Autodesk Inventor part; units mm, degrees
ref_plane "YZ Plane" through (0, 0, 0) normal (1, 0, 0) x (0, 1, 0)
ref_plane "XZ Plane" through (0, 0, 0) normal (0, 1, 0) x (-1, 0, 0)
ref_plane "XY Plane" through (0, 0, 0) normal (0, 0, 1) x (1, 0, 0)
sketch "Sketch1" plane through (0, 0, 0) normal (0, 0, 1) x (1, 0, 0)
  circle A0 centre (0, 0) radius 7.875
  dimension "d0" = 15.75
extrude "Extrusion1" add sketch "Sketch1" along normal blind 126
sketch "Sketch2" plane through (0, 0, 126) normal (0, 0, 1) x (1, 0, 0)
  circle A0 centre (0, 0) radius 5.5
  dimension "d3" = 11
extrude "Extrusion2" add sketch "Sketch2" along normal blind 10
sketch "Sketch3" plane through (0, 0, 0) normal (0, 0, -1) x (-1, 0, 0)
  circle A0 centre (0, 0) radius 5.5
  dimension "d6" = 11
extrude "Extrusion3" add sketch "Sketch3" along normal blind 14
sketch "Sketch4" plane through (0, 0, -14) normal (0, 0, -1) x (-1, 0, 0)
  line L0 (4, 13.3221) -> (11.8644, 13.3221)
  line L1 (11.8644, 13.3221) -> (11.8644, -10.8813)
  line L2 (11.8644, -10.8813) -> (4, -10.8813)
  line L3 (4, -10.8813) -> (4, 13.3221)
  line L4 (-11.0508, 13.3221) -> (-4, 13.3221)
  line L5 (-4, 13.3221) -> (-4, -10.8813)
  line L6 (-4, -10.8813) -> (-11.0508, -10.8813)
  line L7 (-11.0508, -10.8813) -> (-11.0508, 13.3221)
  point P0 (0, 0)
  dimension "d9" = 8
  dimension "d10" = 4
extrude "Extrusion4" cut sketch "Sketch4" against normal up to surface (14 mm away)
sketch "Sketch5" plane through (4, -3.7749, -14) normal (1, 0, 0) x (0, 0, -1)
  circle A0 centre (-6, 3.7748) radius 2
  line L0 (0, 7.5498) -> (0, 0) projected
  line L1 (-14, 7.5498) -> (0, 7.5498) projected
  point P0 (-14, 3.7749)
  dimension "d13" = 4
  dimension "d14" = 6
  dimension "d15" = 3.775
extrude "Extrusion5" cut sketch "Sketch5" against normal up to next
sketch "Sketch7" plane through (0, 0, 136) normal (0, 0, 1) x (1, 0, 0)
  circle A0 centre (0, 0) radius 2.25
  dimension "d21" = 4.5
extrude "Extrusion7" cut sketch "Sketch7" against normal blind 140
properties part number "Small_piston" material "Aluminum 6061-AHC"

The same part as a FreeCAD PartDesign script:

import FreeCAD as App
import Part
import Sketcher
from FreeCAD import Vector
Q = App.Units.Quantity

doc = App.newDocument("Part")
body = doc.addObject("PartDesign::Body", "Body")

# Sketch on XY plane
sketch1 = body.newObject("Sketcher::SketchObject", "Sketch")
sketch1.AttachmentSupport = (doc.getObject("XY_Plane"), [""])
sketch1.MapMode = "FlatFace"
sketch1.addGeometry(Part.Circle(Vector(0, 0, 0), Vector(0, 0, 1), 8), False)
sketch1.addConstraint([
    Sketcher.Constraint("Coincident", 0, 3, -1, 1),
    Sketcher.Constraint("Diameter", 0, Q("15.75 mm")),
])
pad1 = body.newObject("PartDesign::Pad", "Pad")
pad1.Profile = sketch1
pad1.Length = 126

# Sketch on XY plane
sketch2 = body.newObject("Sketcher::SketchObject", "Sketch001")
sketch2.AttachmentSupport = (doc.getObject("XY_Plane"), [""])
sketch2.MapMode = "FlatFace"
sketch2.AttachmentOffset = App.Placement(Vector(0, 0, 126), App.Rotation())
sketch2.addGeometry(Part.Circle(Vector(0, 0, 0), Vector(0, 0, 1), 6), False)
sketch2.addConstraint([
    Sketcher.Constraint("Coincident", 0, 3, -1, 1),
    Sketcher.Constraint("Diameter", 0, Q("11 mm")),
])
pad2 = body.newObject("PartDesign::Pad", "Pad001")
pad2.Profile = sketch2
pad2.Length = 10

# Sketch on XY plane
sketch3 = body.newObject("Sketcher::SketchObject", "Sketch002")
sketch3.AttachmentSupport = (doc.getObject("XY_Plane"), [""])
sketch3.MapMode = "FlatFace"
sketch3.addGeometry(Part.Circle(Vector(0, 0, 0), Vector(0, 0, 1), 6), False)
sketch3.addConstraint([
    Sketcher.Constraint("Coincident", 0, 3, -1, 1),
    Sketcher.Constraint("Diameter", 0, Q("11 mm")),
])
pad3 = body.newObject("PartDesign::Pad", "Pad002")
pad3.Profile = sketch3
pad3.Length = 14
pad3.Reversed = True

# Sketch on XY plane
sketch4 = body.newObject("Sketcher::SketchObject", "Sketch003")
sketch4.AttachmentSupport = (doc.getObject("XY_Plane"), [""])
sketch4.MapMode = "FlatFace"
sketch4.AttachmentOffset = App.Placement(Vector(0, 0, -14), App.Rotation())
sketch4.addGeometry([
    Part.LineSegment(Vector(-12, 13, 0), Vector(-4, 13, 0)),  # 0
    Part.LineSegment(Vector(-4, 13, 0), Vector(-4, -11, 0)),  # 1
    Part.LineSegment(Vector(-4, -11, 0), Vector(-12, -11, 0)),  # 2
    Part.LineSegment(Vector(-12, -11, 0), Vector(-12, 13, 0)),  # 3
    Part.LineSegment(Vector(4, 13, 0), Vector(11, 13, 0)),  # 4
    Part.LineSegment(Vector(11, 13, 0), Vector(11, -11, 0)),  # 5
    Part.LineSegment(Vector(11, -11, 0), Vector(4, -11, 0)),  # 6
    Part.LineSegment(Vector(4, -11, 0), Vector(4, 13, 0)),  # 7
], False)
sketch4.addConstraint([
    Sketcher.Constraint("Coincident", 0, 2, 1, 1),
    Sketcher.Constraint("Coincident", 1, 2, 2, 1),
    Sketcher.Constraint("Coincident", 2, 2, 3, 1),
    Sketcher.Constraint("Coincident", 3, 2, 0, 1),
    Sketcher.Constraint("Coincident", 4, 2, 5, 1),
    Sketcher.Constraint("Coincident", 5, 2, 6, 1),
    Sketcher.Constraint("Coincident", 6, 2, 7, 1),
    Sketcher.Constraint("Coincident", 7, 2, 4, 1),
    Sketcher.Constraint("Horizontal", 0),
    Sketcher.Constraint("Vertical", 1),
    Sketcher.Constraint("Horizontal", 2),
    Sketcher.Constraint("Vertical", 3),
    Sketcher.Constraint("Horizontal", 4),
    Sketcher.Constraint("Vertical", 5),
    Sketcher.Constraint("Horizontal", 6),
    Sketcher.Constraint("Vertical", 7),
    Sketcher.Constraint("Symmetric", 1, 2, 6, 2, -2),
    Sketcher.Constraint("Horizontal", 3, 2, 4, 2),
    Sketcher.Constraint("DistanceX", 0, 2, -1, 1, Q("4 mm")),
    Sketcher.Constraint("DistanceX", 0, 1, 0, 2, Q("7.8644 mm")),
    Sketcher.Constraint("DistanceX", 4, 1, 4, 2, Q("7.0508 mm")),
    Sketcher.Constraint("DistanceY", 1, 2, 1, 1, Q("24.2034 mm")),
    Sketcher.Constraint("DistanceY", -1, 1, 0, 2, Q("13.322 mm")),
])
pocket1 = body.newObject("PartDesign::Pocket", "Pocket")
pocket1.Profile = sketch4
pocket1.Length = 14
pocket1.Reversed = True

# Sketch on YZ plane
sketch5 = body.newObject("Sketcher::SketchObject", "Sketch004")
sketch5.AttachmentSupport = (doc.getObject("YZ_Plane"), [""])
sketch5.MapMode = "FlatFace"
sketch5.AttachmentOffset = App.Placement(Vector(0, 0, 4), App.Rotation())
sketch5.addGeometry(Part.Circle(Vector(0, -8, 0), Vector(0, 0, 1), 2), False)
sketch5.addConstraint([
    Sketcher.Constraint("PointOnObject", 0, 3, -2),
    Sketcher.Constraint("Diameter", 0, Q("4 mm")),
    Sketcher.Constraint("DistanceY", 0, 3, -1, 1, Q("8 mm")),
])
pocket2 = body.newObject("PartDesign::Pocket", "Pocket001")
pocket2.Profile = sketch5
pocket2.Type = "UpToFirst"

# Sketch on XY plane
sketch6 = body.newObject("Sketcher::SketchObject", "Sketch005")
sketch6.AttachmentSupport = (doc.getObject("XY_Plane"), [""])
sketch6.MapMode = "FlatFace"
sketch6.AttachmentOffset = App.Placement(Vector(0, 0, 136), App.Rotation())
sketch6.addGeometry(Part.Circle(Vector(0, 0, 0), Vector(0, 0, 1), 2.2), False)
sketch6.addConstraint([
    Sketcher.Constraint("Coincident", 0, 3, -1, 1),
    Sketcher.Constraint("Diameter", 0, Q("4.5 mm")),
])
pocket3 = body.newObject("PartDesign::Pocket", "Pocket002")
pocket3.Profile = sketch6
pocket3.Length = 140

doc.recompute()
